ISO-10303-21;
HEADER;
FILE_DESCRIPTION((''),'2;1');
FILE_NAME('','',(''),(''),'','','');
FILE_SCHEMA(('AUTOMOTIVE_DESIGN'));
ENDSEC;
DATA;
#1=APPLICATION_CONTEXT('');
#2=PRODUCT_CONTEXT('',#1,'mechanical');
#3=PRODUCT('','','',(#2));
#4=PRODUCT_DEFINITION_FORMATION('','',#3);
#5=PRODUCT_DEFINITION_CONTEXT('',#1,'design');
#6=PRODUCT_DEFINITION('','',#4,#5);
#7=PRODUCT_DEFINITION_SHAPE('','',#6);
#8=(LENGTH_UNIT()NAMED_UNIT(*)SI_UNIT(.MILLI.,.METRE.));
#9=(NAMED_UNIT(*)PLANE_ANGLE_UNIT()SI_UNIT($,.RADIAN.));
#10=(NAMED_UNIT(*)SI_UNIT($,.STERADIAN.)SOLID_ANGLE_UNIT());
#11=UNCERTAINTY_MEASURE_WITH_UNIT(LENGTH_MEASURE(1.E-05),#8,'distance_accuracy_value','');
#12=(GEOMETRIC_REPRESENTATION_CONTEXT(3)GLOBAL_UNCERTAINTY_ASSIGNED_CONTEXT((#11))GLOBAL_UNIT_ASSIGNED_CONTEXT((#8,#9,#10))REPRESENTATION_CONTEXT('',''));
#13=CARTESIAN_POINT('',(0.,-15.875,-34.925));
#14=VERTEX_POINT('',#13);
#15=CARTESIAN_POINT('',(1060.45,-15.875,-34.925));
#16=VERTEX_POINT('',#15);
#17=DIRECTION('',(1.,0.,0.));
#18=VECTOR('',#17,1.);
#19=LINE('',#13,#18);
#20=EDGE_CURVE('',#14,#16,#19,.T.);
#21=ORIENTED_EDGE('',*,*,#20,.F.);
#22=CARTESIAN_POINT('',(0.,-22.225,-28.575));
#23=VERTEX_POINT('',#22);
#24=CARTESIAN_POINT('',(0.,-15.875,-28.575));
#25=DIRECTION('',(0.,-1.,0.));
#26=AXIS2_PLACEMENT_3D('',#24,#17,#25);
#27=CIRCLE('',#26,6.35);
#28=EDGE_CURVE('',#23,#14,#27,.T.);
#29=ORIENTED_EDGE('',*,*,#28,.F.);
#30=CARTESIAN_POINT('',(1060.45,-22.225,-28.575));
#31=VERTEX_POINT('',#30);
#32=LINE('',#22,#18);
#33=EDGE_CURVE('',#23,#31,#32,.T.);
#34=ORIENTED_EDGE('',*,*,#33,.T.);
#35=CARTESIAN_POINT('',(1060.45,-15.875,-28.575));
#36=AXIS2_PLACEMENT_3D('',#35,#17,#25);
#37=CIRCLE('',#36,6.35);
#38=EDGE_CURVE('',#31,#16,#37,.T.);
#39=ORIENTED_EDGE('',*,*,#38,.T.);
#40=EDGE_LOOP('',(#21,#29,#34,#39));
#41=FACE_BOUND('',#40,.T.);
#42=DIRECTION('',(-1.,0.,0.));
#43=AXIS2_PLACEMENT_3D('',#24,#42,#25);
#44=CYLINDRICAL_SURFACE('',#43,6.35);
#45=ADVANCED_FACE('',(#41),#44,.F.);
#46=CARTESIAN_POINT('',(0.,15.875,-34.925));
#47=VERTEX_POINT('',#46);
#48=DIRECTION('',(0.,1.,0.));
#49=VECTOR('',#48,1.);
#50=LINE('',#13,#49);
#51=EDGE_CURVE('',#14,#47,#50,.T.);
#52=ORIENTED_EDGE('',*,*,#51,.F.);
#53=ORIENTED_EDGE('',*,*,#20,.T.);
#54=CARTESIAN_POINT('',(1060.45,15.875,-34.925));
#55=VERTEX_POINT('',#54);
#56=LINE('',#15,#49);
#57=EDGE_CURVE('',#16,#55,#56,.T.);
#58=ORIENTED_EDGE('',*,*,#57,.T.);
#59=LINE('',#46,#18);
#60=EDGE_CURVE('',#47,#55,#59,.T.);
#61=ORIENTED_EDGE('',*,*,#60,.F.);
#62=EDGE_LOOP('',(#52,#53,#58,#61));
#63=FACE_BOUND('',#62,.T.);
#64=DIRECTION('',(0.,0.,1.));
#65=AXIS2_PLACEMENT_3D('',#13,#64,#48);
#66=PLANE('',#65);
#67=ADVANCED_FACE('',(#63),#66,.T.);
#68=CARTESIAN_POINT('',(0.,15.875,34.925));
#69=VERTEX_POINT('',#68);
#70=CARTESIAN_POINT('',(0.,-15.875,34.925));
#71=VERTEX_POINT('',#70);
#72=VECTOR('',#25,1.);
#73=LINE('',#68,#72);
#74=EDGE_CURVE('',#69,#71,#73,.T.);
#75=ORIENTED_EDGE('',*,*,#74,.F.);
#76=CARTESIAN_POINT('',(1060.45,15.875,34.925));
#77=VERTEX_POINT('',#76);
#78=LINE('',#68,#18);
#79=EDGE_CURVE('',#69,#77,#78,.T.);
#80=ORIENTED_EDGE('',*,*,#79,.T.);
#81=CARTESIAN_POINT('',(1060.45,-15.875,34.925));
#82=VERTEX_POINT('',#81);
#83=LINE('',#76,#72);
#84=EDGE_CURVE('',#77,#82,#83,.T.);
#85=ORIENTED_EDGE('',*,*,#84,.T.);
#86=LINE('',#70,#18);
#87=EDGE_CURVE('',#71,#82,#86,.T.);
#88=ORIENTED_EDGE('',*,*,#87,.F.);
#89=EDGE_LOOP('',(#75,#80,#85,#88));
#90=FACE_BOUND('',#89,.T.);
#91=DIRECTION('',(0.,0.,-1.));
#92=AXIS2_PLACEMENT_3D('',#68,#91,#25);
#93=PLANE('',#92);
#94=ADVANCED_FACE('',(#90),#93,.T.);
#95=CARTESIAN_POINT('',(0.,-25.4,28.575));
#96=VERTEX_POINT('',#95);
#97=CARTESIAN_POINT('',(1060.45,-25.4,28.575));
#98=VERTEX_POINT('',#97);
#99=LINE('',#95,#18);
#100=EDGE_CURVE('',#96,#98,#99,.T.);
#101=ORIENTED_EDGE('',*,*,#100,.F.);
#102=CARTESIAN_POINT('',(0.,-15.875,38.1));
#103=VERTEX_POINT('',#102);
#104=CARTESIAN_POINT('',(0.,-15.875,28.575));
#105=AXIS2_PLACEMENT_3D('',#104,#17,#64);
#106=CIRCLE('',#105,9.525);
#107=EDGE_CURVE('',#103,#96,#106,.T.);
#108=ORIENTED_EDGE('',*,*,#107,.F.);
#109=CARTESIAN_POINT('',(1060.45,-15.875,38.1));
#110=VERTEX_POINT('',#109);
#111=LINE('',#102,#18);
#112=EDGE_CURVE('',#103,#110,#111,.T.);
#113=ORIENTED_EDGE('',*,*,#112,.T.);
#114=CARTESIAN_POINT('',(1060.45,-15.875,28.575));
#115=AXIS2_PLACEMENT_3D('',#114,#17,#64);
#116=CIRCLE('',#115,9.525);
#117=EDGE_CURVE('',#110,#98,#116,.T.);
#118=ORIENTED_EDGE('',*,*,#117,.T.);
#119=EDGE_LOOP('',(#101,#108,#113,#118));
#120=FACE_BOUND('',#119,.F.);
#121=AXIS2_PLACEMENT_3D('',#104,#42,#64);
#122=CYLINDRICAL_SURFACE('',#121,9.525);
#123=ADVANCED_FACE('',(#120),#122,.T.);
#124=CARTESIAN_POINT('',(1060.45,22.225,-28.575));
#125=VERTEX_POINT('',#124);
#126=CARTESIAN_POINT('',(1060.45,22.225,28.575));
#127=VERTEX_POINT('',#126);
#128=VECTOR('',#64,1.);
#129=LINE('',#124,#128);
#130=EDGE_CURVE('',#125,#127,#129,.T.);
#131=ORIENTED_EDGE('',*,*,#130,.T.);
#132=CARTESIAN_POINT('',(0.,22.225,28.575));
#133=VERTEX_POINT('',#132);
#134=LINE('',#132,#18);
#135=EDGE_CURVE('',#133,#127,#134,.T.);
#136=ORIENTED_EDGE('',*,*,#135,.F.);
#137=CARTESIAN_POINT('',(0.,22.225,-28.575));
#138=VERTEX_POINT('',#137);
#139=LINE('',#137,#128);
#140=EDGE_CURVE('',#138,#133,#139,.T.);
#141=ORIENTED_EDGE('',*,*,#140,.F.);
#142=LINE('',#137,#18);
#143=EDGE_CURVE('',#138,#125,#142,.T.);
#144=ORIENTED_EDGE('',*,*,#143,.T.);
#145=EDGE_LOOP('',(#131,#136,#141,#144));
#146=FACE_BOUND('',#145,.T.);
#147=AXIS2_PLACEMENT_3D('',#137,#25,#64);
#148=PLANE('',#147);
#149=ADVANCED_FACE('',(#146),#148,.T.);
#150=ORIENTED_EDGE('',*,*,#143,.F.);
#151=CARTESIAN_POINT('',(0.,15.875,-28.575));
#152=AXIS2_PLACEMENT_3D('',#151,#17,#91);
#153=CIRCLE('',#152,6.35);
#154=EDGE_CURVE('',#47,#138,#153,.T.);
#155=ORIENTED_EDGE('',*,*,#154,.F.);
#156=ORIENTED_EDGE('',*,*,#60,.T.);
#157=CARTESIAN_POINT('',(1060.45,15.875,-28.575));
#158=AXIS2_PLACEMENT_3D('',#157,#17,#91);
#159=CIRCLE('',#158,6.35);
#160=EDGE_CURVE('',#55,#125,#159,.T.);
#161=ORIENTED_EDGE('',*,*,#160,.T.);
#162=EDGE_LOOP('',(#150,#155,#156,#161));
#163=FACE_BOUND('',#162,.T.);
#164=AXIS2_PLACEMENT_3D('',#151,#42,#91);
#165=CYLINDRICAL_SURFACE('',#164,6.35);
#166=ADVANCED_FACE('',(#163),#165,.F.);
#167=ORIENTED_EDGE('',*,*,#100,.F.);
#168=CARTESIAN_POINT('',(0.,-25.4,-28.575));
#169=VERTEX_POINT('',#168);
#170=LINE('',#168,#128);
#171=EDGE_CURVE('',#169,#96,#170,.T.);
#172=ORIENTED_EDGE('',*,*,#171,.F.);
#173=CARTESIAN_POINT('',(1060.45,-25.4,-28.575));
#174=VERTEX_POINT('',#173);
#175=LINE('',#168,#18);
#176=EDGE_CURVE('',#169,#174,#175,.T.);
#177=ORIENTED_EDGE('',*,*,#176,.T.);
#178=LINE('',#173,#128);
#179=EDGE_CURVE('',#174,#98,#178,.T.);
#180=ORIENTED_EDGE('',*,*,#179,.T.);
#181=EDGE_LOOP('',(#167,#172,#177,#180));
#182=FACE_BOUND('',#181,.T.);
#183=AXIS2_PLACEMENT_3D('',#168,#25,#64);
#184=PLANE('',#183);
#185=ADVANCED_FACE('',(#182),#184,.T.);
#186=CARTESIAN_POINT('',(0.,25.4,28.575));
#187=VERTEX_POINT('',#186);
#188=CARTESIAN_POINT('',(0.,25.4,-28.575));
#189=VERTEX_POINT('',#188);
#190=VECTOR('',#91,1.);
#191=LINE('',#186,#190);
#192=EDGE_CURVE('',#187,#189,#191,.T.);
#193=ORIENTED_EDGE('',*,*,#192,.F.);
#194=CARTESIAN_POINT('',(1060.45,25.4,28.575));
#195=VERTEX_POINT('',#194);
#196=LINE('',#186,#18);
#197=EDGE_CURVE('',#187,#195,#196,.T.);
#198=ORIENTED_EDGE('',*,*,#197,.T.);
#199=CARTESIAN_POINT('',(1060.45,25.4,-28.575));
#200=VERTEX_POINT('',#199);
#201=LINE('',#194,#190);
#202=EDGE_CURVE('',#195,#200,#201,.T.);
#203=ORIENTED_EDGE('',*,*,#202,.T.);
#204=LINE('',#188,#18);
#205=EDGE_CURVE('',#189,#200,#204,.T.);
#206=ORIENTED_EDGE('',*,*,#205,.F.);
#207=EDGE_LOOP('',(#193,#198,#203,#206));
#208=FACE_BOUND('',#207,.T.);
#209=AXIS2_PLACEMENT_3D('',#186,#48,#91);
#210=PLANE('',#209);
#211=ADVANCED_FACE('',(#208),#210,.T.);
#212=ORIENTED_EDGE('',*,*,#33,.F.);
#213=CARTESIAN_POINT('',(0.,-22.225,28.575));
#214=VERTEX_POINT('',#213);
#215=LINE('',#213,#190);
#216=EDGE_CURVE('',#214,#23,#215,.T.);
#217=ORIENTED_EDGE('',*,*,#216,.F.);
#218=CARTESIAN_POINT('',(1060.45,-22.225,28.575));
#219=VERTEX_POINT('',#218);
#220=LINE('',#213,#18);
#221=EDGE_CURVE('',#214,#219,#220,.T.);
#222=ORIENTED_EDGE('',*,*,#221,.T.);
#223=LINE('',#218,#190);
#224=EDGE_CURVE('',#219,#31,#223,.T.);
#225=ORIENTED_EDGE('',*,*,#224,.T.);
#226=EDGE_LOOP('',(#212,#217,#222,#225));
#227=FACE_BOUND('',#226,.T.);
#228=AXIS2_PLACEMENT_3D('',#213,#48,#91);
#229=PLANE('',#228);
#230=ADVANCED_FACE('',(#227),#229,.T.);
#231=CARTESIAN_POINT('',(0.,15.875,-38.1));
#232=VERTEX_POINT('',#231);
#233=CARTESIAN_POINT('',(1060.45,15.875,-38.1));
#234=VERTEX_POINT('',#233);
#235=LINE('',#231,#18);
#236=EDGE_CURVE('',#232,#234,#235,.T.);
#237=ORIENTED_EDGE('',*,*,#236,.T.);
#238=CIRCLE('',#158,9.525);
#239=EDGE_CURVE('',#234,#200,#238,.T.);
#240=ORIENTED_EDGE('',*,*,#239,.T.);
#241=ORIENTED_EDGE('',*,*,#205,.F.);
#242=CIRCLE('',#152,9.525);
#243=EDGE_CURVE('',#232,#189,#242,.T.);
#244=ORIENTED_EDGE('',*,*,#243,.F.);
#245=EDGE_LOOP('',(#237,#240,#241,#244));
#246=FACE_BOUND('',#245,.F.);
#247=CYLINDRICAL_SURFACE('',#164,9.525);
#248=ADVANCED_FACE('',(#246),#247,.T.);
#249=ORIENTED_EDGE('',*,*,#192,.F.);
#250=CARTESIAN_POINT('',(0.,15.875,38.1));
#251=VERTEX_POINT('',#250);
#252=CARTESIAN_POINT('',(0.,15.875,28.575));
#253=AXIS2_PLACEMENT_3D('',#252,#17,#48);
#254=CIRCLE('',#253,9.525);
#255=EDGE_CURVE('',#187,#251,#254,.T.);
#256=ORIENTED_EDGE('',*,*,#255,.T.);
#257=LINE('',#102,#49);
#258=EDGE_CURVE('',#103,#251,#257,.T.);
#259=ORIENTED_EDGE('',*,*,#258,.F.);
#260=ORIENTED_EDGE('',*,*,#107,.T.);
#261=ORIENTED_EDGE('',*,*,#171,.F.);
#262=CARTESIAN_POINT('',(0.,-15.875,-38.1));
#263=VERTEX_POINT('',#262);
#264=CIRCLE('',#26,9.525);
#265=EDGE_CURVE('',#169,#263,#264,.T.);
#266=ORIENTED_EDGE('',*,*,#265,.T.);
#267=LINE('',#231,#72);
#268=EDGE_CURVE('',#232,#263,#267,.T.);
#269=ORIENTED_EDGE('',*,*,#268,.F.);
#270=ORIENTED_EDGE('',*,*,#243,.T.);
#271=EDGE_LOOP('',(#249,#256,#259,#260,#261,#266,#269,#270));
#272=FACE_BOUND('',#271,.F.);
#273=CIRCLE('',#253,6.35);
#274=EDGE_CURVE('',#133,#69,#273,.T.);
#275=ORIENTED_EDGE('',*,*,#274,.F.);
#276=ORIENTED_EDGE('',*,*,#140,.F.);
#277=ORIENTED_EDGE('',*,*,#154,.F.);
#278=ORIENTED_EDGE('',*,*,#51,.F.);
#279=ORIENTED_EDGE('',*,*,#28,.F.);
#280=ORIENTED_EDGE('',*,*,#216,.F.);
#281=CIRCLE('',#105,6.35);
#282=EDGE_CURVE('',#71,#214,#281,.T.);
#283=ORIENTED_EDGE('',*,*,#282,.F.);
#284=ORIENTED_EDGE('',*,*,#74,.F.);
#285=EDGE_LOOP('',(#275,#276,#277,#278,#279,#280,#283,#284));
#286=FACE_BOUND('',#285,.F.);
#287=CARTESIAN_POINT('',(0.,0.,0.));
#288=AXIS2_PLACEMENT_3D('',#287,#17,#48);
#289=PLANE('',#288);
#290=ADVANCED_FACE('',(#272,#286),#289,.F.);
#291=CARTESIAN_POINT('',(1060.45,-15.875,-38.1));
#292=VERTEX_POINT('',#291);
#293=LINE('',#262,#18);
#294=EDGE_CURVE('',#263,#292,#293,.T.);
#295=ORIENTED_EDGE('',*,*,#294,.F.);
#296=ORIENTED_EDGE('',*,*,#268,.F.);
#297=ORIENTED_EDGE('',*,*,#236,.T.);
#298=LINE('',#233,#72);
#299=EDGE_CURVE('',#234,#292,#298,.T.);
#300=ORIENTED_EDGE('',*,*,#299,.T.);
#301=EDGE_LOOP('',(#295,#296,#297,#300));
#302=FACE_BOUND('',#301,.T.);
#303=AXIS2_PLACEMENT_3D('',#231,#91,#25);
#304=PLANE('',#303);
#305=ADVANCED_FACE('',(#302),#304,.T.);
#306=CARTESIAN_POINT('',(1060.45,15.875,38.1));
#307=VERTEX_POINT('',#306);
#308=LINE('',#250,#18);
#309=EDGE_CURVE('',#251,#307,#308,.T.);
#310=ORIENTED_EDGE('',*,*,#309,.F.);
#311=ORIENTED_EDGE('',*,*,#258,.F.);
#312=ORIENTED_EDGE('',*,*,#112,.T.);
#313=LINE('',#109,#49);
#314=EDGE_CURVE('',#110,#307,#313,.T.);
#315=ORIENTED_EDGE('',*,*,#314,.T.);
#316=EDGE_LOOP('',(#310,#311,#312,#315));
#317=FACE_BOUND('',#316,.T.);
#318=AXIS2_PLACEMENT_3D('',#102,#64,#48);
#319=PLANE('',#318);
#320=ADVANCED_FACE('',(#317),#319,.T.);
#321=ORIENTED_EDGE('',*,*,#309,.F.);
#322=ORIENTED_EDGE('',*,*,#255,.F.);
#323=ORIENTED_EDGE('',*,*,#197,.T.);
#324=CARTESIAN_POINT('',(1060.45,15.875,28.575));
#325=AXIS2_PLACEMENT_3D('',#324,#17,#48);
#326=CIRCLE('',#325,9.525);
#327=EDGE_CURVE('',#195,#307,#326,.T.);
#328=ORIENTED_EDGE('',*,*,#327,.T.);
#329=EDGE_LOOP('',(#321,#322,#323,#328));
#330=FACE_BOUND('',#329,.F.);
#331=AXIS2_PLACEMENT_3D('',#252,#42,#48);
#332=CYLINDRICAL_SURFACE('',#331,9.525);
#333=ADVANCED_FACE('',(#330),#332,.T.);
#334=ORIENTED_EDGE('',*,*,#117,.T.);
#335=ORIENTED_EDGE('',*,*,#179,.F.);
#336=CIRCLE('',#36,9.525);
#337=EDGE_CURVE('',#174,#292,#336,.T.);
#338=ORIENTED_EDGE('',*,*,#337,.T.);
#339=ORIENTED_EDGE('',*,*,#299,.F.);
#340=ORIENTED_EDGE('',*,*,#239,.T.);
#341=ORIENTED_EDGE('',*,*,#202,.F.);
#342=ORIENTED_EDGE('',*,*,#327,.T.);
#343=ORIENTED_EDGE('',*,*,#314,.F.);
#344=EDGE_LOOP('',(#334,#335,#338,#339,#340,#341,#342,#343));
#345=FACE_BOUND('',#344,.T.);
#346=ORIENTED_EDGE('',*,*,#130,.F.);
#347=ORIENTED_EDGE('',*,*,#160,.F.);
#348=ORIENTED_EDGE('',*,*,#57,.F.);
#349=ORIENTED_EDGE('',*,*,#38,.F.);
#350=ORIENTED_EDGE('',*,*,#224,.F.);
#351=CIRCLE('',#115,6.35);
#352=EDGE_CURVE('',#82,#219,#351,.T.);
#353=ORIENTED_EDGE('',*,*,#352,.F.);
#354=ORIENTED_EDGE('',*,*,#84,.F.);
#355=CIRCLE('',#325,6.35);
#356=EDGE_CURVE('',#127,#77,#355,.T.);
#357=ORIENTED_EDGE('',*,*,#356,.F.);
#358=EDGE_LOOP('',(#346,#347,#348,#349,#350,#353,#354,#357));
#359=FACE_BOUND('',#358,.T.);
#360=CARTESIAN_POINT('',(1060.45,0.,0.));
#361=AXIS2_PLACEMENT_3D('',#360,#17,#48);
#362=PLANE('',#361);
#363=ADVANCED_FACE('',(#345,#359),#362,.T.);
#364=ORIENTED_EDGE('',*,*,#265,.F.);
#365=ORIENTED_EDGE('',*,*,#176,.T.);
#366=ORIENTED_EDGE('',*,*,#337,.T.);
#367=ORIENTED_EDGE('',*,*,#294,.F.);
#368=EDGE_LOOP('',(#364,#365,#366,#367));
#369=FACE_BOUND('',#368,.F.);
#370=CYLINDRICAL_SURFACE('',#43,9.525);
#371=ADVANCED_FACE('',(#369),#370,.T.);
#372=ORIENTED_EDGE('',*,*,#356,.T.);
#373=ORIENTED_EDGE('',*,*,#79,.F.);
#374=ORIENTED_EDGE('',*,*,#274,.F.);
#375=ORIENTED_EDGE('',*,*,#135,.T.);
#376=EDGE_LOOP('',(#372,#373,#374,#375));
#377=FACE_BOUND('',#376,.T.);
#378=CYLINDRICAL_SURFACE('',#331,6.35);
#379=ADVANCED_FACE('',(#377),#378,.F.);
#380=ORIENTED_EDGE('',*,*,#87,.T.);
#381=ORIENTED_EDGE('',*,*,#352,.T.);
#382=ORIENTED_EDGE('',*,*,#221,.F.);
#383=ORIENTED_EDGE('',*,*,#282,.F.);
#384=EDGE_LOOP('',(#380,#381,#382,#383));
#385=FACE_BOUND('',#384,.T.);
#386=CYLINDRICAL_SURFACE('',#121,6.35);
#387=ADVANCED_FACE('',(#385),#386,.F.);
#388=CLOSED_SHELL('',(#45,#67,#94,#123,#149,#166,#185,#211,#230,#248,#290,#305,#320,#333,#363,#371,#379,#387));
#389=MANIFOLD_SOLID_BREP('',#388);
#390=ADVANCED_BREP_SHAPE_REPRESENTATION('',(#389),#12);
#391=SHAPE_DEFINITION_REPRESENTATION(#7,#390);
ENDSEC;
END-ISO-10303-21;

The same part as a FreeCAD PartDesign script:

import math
import FreeCAD as App
import Part
import Sketcher
Q = App.Units.Quantity

doc = App.newDocument("Part")
body = doc.addObject("PartDesign::Body", "Body")

sketch1 = doc.addObject("Sketcher::SketchObject", "Sketch")
body.addObject(sketch1)
sketch1.AttachmentSupport = (doc.YZ_Plane, [""])
sketch1.MapMode = "FlatFace"
sketch1.addGeometry(Part.LineSegment(App.Vector(15.875, 38.1, 0), App.Vector(-15.875, 38.1, 0)), False)
sketch1.addGeometry(Part.ArcOfCircle(Part.Circle(App.Vector(-15.875, 28.575, 0), App.Vector(0, 0, 1), 9.525), math.radians(90), math.radians(180)), False)
sketch1.addGeometry(Part.LineSegment(App.Vector(-25.4, 28.575, 0), App.Vector(-25.4, -28.575, 0)), False)
sketch1.addGeometry(Part.ArcOfCircle(Part.Circle(App.Vector(-15.875, -28.575, 0), App.Vector(0, 0, 1), 9.525), math.radians(180), math.radians(270)), False)
sketch1.addGeometry(Part.LineSegment(App.Vector(-15.875, -38.1, 0), App.Vector(15.875, -38.1, 0)), False)
sketch1.addGeometry(Part.ArcOfCircle(Part.Circle(App.Vector(15.875, -28.575, 0), App.Vector(0, 0, 1), 9.525), math.radians(-90), math.radians(0)), False)
sketch1.addGeometry(Part.LineSegment(App.Vector(25.4, -28.575, 0), App.Vector(25.4, 28.575, 0)), False)
sketch1.addGeometry(Part.ArcOfCircle(Part.Circle(App.Vector(15.875, 28.575, 0), App.Vector(0, 0, 1), 9.525), math.radians(0), math.radians(90)), False)
sketch1.addGeometry(Part.LineSegment(App.Vector(22.225, 28.575, 0), App.Vector(22.225, -28.575, 0)), False)
sketch1.addGeometry(Part.ArcOfCircle(Part.Circle(App.Vector(15.875, -28.575, 0), App.Vector(0, 0, 1), 6.35), math.radians(-90), math.radians(0)), False)
sketch1.addGeometry(Part.LineSegment(App.Vector(15.875, -34.925, 0), App.Vector(-15.875, -34.925, 0)), False)
sketch1.addGeometry(Part.ArcOfCircle(Part.Circle(App.Vector(-15.875, -28.575, 0), App.Vector(0, 0, 1), 6.35), math.radians(180), math.radians(270)), False)
sketch1.addGeometry(Part.LineSegment(App.Vector(-22.225, -28.575, 0), App.Vector(-22.225, 28.575, 0)), False)
sketch1.addGeometry(Part.ArcOfCircle(Part.Circle(App.Vector(-15.875, 28.575, 0), App.Vector(0, 0, 1), 6.35), math.radians(90), math.radians(180)), False)
sketch1.addGeometry(Part.LineSegment(App.Vector(-15.875, 34.925, 0), App.Vector(15.875, 34.925, 0)), False)
sketch1.addGeometry(Part.ArcOfCircle(Part.Circle(App.Vector(15.875, 28.575, 0), App.Vector(0, 0, 1), 6.35), math.radians(0), math.radians(90)), False)
sketch1.addConstraint(Sketcher.Constraint("Tangent", 0, 2, 1, 1))
sketch1.addConstraint(Sketcher.Constraint("Tangent", 1, 2, 2, 1))
sketch1.addConstraint(Sketcher.Constraint("Tangent", 2, 2, 3, 1))
sketch1.addConstraint(Sketcher.Constraint("Tangent", 3, 2, 4, 1))
sketch1.addConstraint(Sketcher.Constraint("Tangent", 4, 2, 5, 1))
sketch1.addConstraint(Sketcher.Constraint("Tangent", 5, 2, 6, 1))
sketch1.addConstraint(Sketcher.Constraint("Tangent", 6, 2, 7, 1))
sketch1.addConstraint(Sketcher.Constraint("Tangent", 7, 2, 0, 1))
sketch1.addConstraint(Sketcher.Constraint("Tangent", 8, 2, 9, 2))
sketch1.addConstraint(Sketcher.Constraint("Tangent", 9, 1, 10, 1))
sketch1.addConstraint(Sketcher.Constraint("Tangent", 10, 2, 11, 2))
sketch1.addConstraint(Sketcher.Constraint("Tangent", 11, 1, 12, 1))
sketch1.addConstraint(Sketcher.Constraint("Tangent", 12, 2, 13, 2))
sketch1.addConstraint(Sketcher.Constraint("Tangent", 13, 1, 14, 1))
sketch1.addConstraint(Sketcher.Constraint("Tangent", 14, 2, 15, 2))
sketch1.addConstraint(Sketcher.Constraint("Tangent", 15, 1, 8, 1))
sketch1.addConstraint(Sketcher.Constraint("Horizontal", 0))
sketch1.addConstraint(Sketcher.Constraint("Vertical", 2))
sketch1.addConstraint(Sketcher.Constraint("Horizontal", 4))
sketch1.addConstraint(Sketcher.Constraint("Vertical", 6))
sketch1.addConstraint(Sketcher.Constraint("Vertical", 8))
sketch1.addConstraint(Sketcher.Constraint("Horizontal", 10))
sketch1.addConstraint(Sketcher.Constraint("Vertical", 12))
sketch1.addConstraint(Sketcher.Constraint("Horizontal", 14))
sketch1.addConstraint(Sketcher.Constraint("Coincident", 9, 3, 5, 3))
sketch1.addConstraint(Sketcher.Constraint("Coincident", 11, 3, 3, 3))
sketch1.addConstraint(Sketcher.Constraint("Coincident", 13, 3, 1, 3))
sketch1.addConstraint(Sketcher.Constraint("Equal", 1, 3))
sketch1.addConstraint(Sketcher.Constraint("Equal", 3, 5))
sketch1.addConstraint(Sketcher.Constraint("Equal", 5, 7))
sketch1.addConstraint(Sketcher.Constraint("Equal", 13, 15))
sketch1.addConstraint(Sketcher.Constraint("Symmetric", 1, 3, 5, 3, -1, 1))
sketch1.addConstraint(Sketcher.Constraint("Radius", 1, Q("0.375 in")))
sketch1.addConstraint(Sketcher.Constraint("Radius", 9, Q("0.25 in")))
sketch1.addConstraint(Sketcher.Constraint("DistanceX", 1, 2, -1, 1, Q("1 in")))
sketch1.addConstraint(Sketcher.Constraint("DistanceY", 2, 2, 2, 1, Q("2.25 in")))
pad1 = doc.addObject("PartDesign::Pad", "Pad")
body.addObject(pad1)
pad1.Profile = sketch1
pad1.Length = Q("41.75 in")

doc.recompute()
